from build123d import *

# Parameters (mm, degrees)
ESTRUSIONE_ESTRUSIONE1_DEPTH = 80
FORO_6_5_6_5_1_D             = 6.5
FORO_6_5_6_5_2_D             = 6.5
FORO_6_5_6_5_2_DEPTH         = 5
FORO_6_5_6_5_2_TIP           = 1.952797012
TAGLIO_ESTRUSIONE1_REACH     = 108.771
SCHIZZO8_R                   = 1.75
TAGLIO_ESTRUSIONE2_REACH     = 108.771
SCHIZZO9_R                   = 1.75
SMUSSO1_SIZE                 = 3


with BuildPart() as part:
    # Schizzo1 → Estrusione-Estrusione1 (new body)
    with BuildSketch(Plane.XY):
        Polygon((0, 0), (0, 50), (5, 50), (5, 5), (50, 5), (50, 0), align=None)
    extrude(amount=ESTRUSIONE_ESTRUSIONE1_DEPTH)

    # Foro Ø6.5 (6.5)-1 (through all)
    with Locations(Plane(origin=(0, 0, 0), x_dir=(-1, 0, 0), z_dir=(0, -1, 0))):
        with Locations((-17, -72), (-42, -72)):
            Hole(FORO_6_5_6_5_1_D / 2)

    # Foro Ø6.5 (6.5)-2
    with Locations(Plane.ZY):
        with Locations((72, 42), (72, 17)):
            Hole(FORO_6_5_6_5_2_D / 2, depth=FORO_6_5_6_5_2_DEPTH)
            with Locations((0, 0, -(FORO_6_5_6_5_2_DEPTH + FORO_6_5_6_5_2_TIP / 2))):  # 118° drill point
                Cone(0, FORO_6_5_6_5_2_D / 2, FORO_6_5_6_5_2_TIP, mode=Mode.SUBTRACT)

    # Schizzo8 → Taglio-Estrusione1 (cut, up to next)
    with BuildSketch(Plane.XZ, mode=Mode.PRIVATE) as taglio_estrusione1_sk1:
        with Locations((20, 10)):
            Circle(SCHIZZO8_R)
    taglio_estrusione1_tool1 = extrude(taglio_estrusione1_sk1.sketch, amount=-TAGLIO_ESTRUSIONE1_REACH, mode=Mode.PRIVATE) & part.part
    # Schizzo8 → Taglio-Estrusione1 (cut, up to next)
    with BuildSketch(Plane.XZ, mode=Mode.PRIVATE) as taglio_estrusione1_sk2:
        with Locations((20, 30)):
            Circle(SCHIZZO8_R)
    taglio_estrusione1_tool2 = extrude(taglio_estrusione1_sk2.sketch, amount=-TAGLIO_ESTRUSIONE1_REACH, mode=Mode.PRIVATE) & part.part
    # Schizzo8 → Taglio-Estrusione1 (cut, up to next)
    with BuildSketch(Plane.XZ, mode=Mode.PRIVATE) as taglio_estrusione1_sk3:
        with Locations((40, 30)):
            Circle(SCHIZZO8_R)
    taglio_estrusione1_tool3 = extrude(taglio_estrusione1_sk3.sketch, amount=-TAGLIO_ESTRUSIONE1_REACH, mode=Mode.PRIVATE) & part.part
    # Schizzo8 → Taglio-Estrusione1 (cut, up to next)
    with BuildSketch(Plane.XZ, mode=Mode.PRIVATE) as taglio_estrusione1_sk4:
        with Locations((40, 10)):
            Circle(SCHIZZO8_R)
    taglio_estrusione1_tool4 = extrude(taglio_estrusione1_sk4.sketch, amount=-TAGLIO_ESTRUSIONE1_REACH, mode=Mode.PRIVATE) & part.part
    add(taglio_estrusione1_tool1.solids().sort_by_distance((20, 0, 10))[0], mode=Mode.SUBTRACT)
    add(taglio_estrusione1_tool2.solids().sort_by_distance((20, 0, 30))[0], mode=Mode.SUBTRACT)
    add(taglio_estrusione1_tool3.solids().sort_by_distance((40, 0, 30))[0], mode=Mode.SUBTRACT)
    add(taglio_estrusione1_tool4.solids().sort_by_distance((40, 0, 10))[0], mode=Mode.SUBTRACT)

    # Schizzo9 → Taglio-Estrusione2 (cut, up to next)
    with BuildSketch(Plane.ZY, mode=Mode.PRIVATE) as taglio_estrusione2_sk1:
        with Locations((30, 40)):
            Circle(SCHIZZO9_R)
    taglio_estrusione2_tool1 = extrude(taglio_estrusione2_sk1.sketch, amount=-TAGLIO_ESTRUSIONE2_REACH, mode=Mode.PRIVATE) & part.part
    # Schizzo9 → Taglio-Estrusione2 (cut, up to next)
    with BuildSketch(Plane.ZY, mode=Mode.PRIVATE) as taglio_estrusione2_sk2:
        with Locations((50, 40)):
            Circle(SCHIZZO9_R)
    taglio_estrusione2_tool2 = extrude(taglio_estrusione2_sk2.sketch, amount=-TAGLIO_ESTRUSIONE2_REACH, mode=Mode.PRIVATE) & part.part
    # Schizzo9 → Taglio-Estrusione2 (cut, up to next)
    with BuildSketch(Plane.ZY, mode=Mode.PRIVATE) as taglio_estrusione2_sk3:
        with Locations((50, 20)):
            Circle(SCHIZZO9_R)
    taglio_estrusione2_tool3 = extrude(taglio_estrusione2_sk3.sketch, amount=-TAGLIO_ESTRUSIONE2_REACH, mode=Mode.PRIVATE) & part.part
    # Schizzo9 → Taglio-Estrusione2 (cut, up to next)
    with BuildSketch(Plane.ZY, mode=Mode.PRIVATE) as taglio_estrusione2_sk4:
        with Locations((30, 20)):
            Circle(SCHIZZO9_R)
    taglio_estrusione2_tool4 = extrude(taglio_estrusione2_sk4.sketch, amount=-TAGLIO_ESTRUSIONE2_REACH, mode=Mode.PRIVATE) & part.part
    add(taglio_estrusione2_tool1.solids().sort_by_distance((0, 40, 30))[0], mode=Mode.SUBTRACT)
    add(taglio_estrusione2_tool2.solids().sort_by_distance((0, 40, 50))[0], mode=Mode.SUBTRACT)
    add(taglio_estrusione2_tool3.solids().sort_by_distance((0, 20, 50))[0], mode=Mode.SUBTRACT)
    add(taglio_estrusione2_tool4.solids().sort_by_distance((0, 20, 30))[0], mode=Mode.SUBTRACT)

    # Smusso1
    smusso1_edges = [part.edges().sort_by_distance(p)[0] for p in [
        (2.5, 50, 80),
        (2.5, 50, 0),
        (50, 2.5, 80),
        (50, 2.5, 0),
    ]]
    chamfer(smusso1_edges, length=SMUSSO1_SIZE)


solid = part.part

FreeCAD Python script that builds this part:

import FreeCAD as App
import Part
import Sketcher

V = App.Vector


def edges_at(feature, points):
    """Names of the edges that pass closest to the given points."""
    edges = feature.Shape.Edges
    near = lambda p: min(range(len(edges)), key=lambda i: edges[i].distToShape(Part.Vertex(*p))[0])
    return sorted({f"Edge{near(p) + 1}" for p in points})

doc = App.newDocument("Part")
body = doc.addObject("PartDesign::Body", "Body")

# Sketch on XY plane
sketch1 = body.newObject("Sketcher::SketchObject", "Sketch")
sketch1.AttachmentSupport = (doc.getObject("XY_Plane"), [""])
sketch1.MapMode = "FlatFace"
sketch1.addGeometry(Part.LineSegment(V(0, 50, 0), V(0, 0, 0)), False)
sketch1.addGeometry(Part.LineSegment(V(0, 0, 0), V(50, 0, 0)), False)
sketch1.addGeometry(Part.LineSegment(V(50, 0, 0), V(50, 5, 0)), False)
sketch1.addGeometry(Part.LineSegment(V(50, 5, 0), V(5, 5, 0)), False)
sketch1.addGeometry(Part.LineSegment(V(5, 5, 0), V(5, 50, 0)), False)
sketch1.addGeometry(Part.LineSegment(V(5, 50, 0), V(0, 50, 0)), False)
sketch1.addConstraint(Sketcher.Constraint("Coincident", 0, 2, 1, 1))
sketch1.addConstraint(Sketcher.Constraint("Coincident", 1, 2, 2, 1))
sketch1.addConstraint(Sketcher.Constraint("Coincident", 2, 2, 3, 1))
sketch1.addConstraint(Sketcher.Constraint("Coincident", 3, 2, 4, 1))
sketch1.addConstraint(Sketcher.Constraint("Coincident", 4, 2, 5, 1))
sketch1.addConstraint(Sketcher.Constraint("Coincident", 5, 2, 0, 1))
sketch1.addConstraint(Sketcher.Constraint("Vertical", 0))
sketch1.addConstraint(Sketcher.Constraint("Horizontal", 1))
sketch1.addConstraint(Sketcher.Constraint("Vertical", 2))
sketch1.addConstraint(Sketcher.Constraint("Horizontal", 3))
sketch1.addConstraint(Sketcher.Constraint("Vertical", 4))
sketch1.addConstraint(Sketcher.Constraint("Horizontal", 5))
sketch1.addConstraint(Sketcher.Constraint("Coincident", 0, 2, -1, 1))
sketch1.addConstraint(Sketcher.Constraint("Equal", 1, 0))
sketch1.addConstraint(Sketcher.Constraint("Equal", 5, 2))
sketch1.addConstraint(Sketcher.Constraint("DistanceX", 1, 1, 1, 2, 50.0))
sketch1.addConstraint(Sketcher.Constraint("DistanceX", 3, 2, 3, 1, 45.0))
pad1 = body.newObject("PartDesign::Pad", "Pad")
pad1.Profile = sketch1
pad1.Length = 80

# Sketch on XZ plane
sketch2 = body.newObject("Sketcher::SketchObject", "Sketch001")
sketch2.AttachmentSupport = (doc.getObject("XZ_Plane"), [""])
sketch2.MapMode = "FlatFace"
sketch2.addGeometry(Part.Circle(V(17, 72, 0), V(0, 0, 1), 3.2), False)
sketch2.addGeometry(Part.Circle(V(42, 72, 0), V(0, 0, 1), 3.2), False)
sketch2.addConstraint(Sketcher.Constraint("Equal", 0, 1))
sketch2.addConstraint(Sketcher.Constraint("Horizontal", 0, 3, 1, 3))
sketch2.addConstraint(Sketcher.Constraint("Diameter", 0, 6.5))
sketch2.addConstraint(Sketcher.Constraint("DistanceX", -1, 1, 0, 3, 17.0))
sketch2.addConstraint(Sketcher.Constraint("DistanceY", -1, 1, 0, 3, 72.0))
sketch2.addConstraint(Sketcher.Constraint("DistanceX", -1, 1, 1, 3, 42.0))
doc.recompute()
hole = body.newObject("PartDesign::Hole", "Hole")
hole.Profile = sketch2
hole.ThreadType = "None"
hole.Diameter = 6.5
hole.DepthType = "ThroughAll"

# Sketch on YZ plane
sketch3 = body.newObject("Sketcher::SketchObject", "Sketch002")
sketch3.AttachmentSupport = (doc.getObject("YZ_Plane"), [""])
sketch3.MapMode = "FlatFace"
sketch3.addGeometry(Part.Circle(V(42, 72, 0), V(0, 0, 1), 3.2), False)
sketch3.addGeometry(Part.Circle(V(17, 72, 0), V(0, 0, 1), 3.2), False)
sketch3.addConstraint(Sketcher.Constraint("Equal", 0, 1))
sketch3.addConstraint(Sketcher.Constraint("Horizontal", 0, 3, 1, 3))
sketch3.addConstraint(Sketcher.Constraint("Diameter", 0, 6.5))
sketch3.addConstraint(Sketcher.Constraint("DistanceX", -1, 1, 0, 3, 42.0))
sketch3.addConstraint(Sketcher.Constraint("DistanceY", -1, 1, 0, 3, 72.0))
sketch3.addConstraint(Sketcher.Constraint("DistanceX", -1, 1, 1, 3, 17.0))
doc.recompute()
hole2 = body.newObject("PartDesign::Hole", "Hole001")
hole2.Profile = sketch3
hole2.ThreadType = "None"
hole2.Diameter = 6.5
hole2.DepthType = "Dimension"
hole2.Depth = 5
hole2.DrillPoint = "Angled"
hole2.DrillPointAngle = 118
hole2.Reversed = True

# Sketch on XZ plane
sketch4 = body.newObject("Sketcher::SketchObject", "Sketch003")
sketch4.AttachmentSupport = (doc.getObject("XZ_Plane"), [""])
sketch4.MapMode = "FlatFace"
sketch4.addGeometry(Part.Circle(V(20, 10, 0), V(0, 0, 1), 1.8), False)
sketch4.addConstraint(Sketcher.Constraint("Diameter", 0, 3.5))
sketch4.addConstraint(Sketcher.Constraint("DistanceX", -1, 1, 0, 3, 20.0))
sketch4.addConstraint(Sketcher.Constraint("DistanceY", -1, 1, 0, 3, 10.0))
pocket1 = body.newObject("PartDesign::Pocket", "Pocket")
pocket1.Profile = sketch4
pocket1.Type = "UpToFirst"

# Sketch on XZ plane
sketch5 = body.newObject("Sketcher::SketchObject", "Sketch004")
sketch5.AttachmentSupport = (doc.getObject("XZ_Plane"), [""])
sketch5.MapMode = "FlatFace"
sketch5.addGeometry(Part.Circle(V(20, 30, 0), V(0, 0, 1), 1.8), False)
sketch5.addConstraint(Sketcher.Constraint("Diameter", 0, 3.5))
sketch5.addConstraint(Sketcher.Constraint("DistanceX", -1, 1, 0, 3, 20.0))
sketch5.addConstraint(Sketcher.Constraint("DistanceY", -1, 1, 0, 3, 30.0))
pocket2 = body.newObject("PartDesign::Pocket", "Pocket001")
pocket2.Profile = sketch5
pocket2.Type = "UpToFirst"

# Sketch on XZ plane
sketch6 = body.newObject("Sketcher::SketchObject", "Sketch005")
sketch6.AttachmentSupport = (doc.getObject("XZ_Plane"), [""])
sketch6.MapMode = "FlatFace"
sketch6.addGeometry(Part.Circle(V(40, 30, 0), V(0, 0, 1), 1.8), False)
sketch6.addConstraint(Sketcher.Constraint("Diameter", 0, 3.5))
sketch6.addConstraint(Sketcher.Constraint("DistanceX", -1, 1, 0, 3, 40.0))
sketch6.addConstraint(Sketcher.Constraint("DistanceY", -1, 1, 0, 3, 30.0))
pocket3 = body.newObject("PartDesign::Pocket", "Pocket002")
pocket3.Profile = sketch6
pocket3.Type = "UpToFirst"

# Sketch on XZ plane
sketch7 = body.newObject("Sketcher::SketchObject", "Sketch006")
sketch7.AttachmentSupport = (doc.getObject("XZ_Plane"), [""])
sketch7.MapMode = "FlatFace"
sketch7.addGeometry(Part.Circle(V(40, 10, 0), V(0, 0, 1), 1.8), False)
sketch7.addConstraint(Sketcher.Constraint("Diameter", 0, 3.5))
sketch7.addConstraint(Sketcher.Constraint("DistanceX", -1, 1, 0, 3, 40.0))
sketch7.addConstraint(Sketcher.Constraint("DistanceY", -1, 1, 0, 3, 10.0))
pocket4 = body.newObject("PartDesign::Pocket", "Pocket003")
pocket4.Profile = sketch7
pocket4.Type = "UpToFirst"

# Sketch on YZ plane
sketch8 = body.newObject("Sketcher::SketchObject", "Sketch007")
sketch8.AttachmentSupport = (doc.getObject("YZ_Plane"), [""])
sketch8.MapMode = "FlatFace"
sketch8.addGeometry(Part.Circle(V(40, 30, 0), V(0, 0, 1), 1.8), False)
sketch8.addConstraint(Sketcher.Constraint("Diameter", 0, 3.5))
sketch8.addConstraint(Sketcher.Constraint("DistanceX", -1, 1, 0, 3, 40.0))
sketch8.addConstraint(Sketcher.Constraint("DistanceY", -1, 1, 0, 3, 30.0))
pocket5 = body.newObject("PartDesign::Pocket", "Pocket004")
pocket5.Profile = sketch8
pocket5.Type = "UpToFirst"
pocket5.Reversed = True

# Sketch on YZ plane
sketch9 = body.newObject("Sketcher::SketchObject", "Sketch008")
sketch9.AttachmentSupport = (doc.getObject("YZ_Plane"), [""])
sketch9.MapMode = "FlatFace"
sketch9.addGeometry(Part.Circle(V(40, 50, 0), V(0, 0, 1), 1.8), False)
sketch9.addConstraint(Sketcher.Constraint("Diameter", 0, 3.5))
sketch9.addConstraint(Sketcher.Constraint("DistanceX", -1, 1, 0, 3, 40.0))
sketch9.addConstraint(Sketcher.Constraint("DistanceY", -1, 1, 0, 3, 50.0))
pocket6 = body.newObject("PartDesign::Pocket", "Pocket005")
pocket6.Profile = sketch9
pocket6.Type = "UpToFirst"
pocket6.Reversed = True

# Sketch on YZ plane
sketch10 = body.newObject("Sketcher::SketchObject", "Sketch009")
sketch10.AttachmentSupport = (doc.getObject("YZ_Plane"), [""])
sketch10.MapMode = "FlatFace"
sketch10.addGeometry(Part.Circle(V(20, 50, 0), V(0, 0, 1), 1.8), False)
sketch10.addConstraint(Sketcher.Constraint("Diameter", 0, 3.5))
sketch10.addConstraint(Sketcher.Constraint("DistanceX", -1, 1, 0, 3, 20.0))
sketch10.addConstraint(Sketcher.Constraint("DistanceY", -1, 1, 0, 3, 50.0))
pocket7 = body.newObject("PartDesign::Pocket", "Pocket006")
pocket7.Profile = sketch10
pocket7.Type = "UpToFirst"
pocket7.Reversed = True

# Sketch on YZ plane
sketch11 = body.newObject("Sketcher::SketchObject", "Sketch010")
sketch11.AttachmentSupport = (doc.getObject("YZ_Plane"), [""])
sketch11.MapMode = "FlatFace"
sketch11.addGeometry(Part.Circle(V(20, 30, 0), V(0, 0, 1), 1.8), False)
sketch11.addConstraint(Sketcher.Constraint("Diameter", 0, 3.5))
sketch11.addConstraint(Sketcher.Constraint("DistanceX", -1, 1, 0, 3, 20.0))
sketch11.addConstraint(Sketcher.Constraint("DistanceY", -1, 1, 0, 3, 30.0))
pocket8 = body.newObject("PartDesign::Pocket", "Pocket007")
pocket8.Profile = sketch11
pocket8.Type = "UpToFirst"
pocket8.Reversed = True
doc.recompute()

chamfer = body.newObject("PartDesign::Chamfer", "Chamfer")
chamfer.Base = (pocket8, edges_at(pocket8, [
    (2.5, 50, 80),
    (2.5, 50, 0),
    (50, 2.5, 80),
    (50, 2.5, 0),
]))
chamfer.Size = 3

doc.recompute()
